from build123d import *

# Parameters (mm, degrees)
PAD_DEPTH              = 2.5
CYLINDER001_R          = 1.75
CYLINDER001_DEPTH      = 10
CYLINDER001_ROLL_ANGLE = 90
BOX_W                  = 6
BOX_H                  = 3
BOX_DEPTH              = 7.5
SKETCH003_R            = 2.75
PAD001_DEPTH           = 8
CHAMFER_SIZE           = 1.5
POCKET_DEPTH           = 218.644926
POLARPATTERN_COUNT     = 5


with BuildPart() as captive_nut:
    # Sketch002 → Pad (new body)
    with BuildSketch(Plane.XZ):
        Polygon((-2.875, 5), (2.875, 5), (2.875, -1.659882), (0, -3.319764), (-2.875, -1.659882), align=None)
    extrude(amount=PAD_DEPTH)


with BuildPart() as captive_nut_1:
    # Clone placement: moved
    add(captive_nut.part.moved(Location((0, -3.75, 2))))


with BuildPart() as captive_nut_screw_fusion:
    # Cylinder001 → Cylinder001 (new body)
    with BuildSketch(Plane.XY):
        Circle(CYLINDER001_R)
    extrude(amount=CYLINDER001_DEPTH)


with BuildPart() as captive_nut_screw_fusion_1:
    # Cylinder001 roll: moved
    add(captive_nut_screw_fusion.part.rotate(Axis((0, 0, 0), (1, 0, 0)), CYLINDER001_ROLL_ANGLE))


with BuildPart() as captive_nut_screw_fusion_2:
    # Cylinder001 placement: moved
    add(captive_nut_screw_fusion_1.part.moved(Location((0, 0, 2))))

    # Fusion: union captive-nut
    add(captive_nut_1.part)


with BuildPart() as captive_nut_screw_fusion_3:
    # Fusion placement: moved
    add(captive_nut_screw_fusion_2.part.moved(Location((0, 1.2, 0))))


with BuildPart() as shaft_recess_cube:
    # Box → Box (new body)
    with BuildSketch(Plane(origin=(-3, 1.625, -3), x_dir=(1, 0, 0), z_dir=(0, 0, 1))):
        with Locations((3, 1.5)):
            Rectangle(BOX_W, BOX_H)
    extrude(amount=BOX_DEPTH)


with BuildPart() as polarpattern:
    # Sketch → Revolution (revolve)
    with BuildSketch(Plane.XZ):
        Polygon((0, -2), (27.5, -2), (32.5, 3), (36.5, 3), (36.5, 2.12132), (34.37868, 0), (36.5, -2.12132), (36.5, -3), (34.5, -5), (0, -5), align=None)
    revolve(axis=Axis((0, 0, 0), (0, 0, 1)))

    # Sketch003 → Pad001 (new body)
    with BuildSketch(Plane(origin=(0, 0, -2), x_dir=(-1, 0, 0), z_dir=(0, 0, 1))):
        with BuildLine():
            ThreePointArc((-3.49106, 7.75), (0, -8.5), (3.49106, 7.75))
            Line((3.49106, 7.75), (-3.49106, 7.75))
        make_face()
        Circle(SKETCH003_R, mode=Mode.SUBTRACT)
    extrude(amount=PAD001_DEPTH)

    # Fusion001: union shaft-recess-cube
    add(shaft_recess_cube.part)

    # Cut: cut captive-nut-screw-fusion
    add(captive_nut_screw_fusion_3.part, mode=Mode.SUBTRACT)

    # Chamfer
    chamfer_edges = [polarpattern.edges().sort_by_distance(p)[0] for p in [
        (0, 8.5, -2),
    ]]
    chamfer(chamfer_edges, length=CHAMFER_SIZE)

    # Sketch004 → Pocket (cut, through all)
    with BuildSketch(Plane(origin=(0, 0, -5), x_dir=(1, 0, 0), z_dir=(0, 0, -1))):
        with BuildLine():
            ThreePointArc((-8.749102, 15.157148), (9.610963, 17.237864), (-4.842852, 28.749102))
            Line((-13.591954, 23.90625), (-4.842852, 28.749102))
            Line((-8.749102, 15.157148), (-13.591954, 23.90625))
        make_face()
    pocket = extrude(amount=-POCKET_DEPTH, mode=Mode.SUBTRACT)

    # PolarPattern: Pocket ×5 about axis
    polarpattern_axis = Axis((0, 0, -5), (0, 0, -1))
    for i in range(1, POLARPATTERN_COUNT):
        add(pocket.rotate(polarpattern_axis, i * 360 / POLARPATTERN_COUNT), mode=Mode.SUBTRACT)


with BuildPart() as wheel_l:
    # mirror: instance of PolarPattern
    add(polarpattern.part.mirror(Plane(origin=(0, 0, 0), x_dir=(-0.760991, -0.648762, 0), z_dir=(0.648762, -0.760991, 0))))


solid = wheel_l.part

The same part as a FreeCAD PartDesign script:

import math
import FreeCAD as App
import Part
import Sketcher
Q = App.Units.Quantity


def edges_at(feature, points):
    """Names of the edges that pass closest to the given points."""
    edges = feature.Shape.Edges
    near = lambda p: min(range(len(edges)), key=lambda i: edges[i].distToShape(Part.Vertex(*p))[0])
    return sorted({f"Edge{near(p) + 1}" for p in points})


def add_polygon(sketch, points):
    """Adds a closed chain of lines whose ends are joined by coincident constraints."""
    first, n = sketch.GeometryCount, len(points)
    for a, b in zip(points, points[1:] + points[:1]):
        sketch.addGeometry(Part.LineSegment(App.Vector(*a, 0), App.Vector(*b, 0)), False)
    for i in range(n):
        sketch.addConstraint(Sketcher.Constraint("Coincident", first + i, 2, first + (i + 1) % n, 1))

doc = App.newDocument("Part")
body = doc.addObject("PartDesign::Body", "Body")

sketch1 = doc.addObject("Sketcher::SketchObject", "Sketch")
body.addObject(sketch1)
sketch1.AttachmentSupport = (doc.XZ_Plane, [""])
sketch1.MapMode = "FlatFace"
add_polygon(sketch1, [(2.875, 5), (-2.875, 5), (-2.875, -1.659882), (0, -3.319764), (2.875, -1.659882)])
sketch1.addConstraint([
    Sketcher.Constraint("Horizontal", 0),
    Sketcher.Constraint("Vertical", 1),
    Sketcher.Constraint("Vertical", 4),
    Sketcher.Constraint("Symmetric", 1, 2, 3, 2, -2),
    Sketcher.Constraint("PointOnObject", 2, 2, -2),
    Sketcher.Constraint("Angle", 2, Q("-30 deg")),
    Sketcher.Constraint("DistanceY", -1, 1, 0, 2, 5.0),
    Sketcher.Constraint("DistanceX", 0, 2, 0, 1, 5.75),
    Sketcher.Constraint("DistanceY", 1, 2, 1, 1, 6.659882),
])
pad1 = doc.addObject("PartDesign::Pad", "Pad")
body.addObject(pad1)
pad1.Profile = sketch1
pad1.Length = 2.5
body2 = doc.addObject("PartDesign::Body", "Body001")
doc.recompute()

body.Placement = App.Placement(App.Vector(0, -3.75, 2), App.Rotation(App.Vector(0, 0, 1), 0))
boolean = doc.addObject("PartDesign::Boolean", "Boolean")
body2.addObject(boolean)
boolean.Type = "Fuse"
boolean.addObjects([body])
body3 = doc.addObject("PartDesign::Body", "Body002")

sketch2 = doc.addObject("Sketcher::SketchObject", "Sketch001")
body3.addObject(sketch2)
sketch2.AttachmentSupport = (doc.getObject("XY_Plane002"), [""])
sketch2.MapMode = "FlatFace"
sketch2.addGeometry(Part.Circle(App.Vector(0, 0, 0), App.Vector(0, 0, 1), 1.75), False)
sketch2.addConstraint([
    Sketcher.Constraint("Coincident", 0, 3, -1, 1),
    Sketcher.Constraint("Diameter", 0, 3.5),
])
pad2 = doc.addObject("PartDesign::Pad", "Pad001")
body3.addObject(pad2)
pad2.Profile = sketch2
pad2.Length = 10
body4 = doc.addObject("PartDesign::Body", "Body003")
doc.recompute()

body3.Placement = App.Placement(App.Vector(0, 0, 0), App.Rotation(App.Vector(1, 0, 0), 90))
boolean2 = doc.addObject("PartDesign::Boolean", "Boolean001")
body4.addObject(boolean2)
boolean2.Type = "Fuse"
boolean2.addObjects([body3])
body5 = doc.addObject("PartDesign::Body", "Body004")
doc.recompute()

body4.Placement = App.Placement(App.Vector(0, 0, 2), App.Rotation(App.Vector(0, 0, 1), 0))
boolean3 = doc.addObject("PartDesign::Boolean", "Boolean002")
body5.addObject(boolean3)
boolean3.Type = "Fuse"
boolean3.addObjects([body4])
doc.recompute()

boolean4 = doc.addObject("PartDesign::Boolean", "Boolean003")
body5.addObject(boolean4)
boolean4.Type = "Fuse"
boolean4.addObjects([body2])
body6 = doc.addObject("PartDesign::Body", "Body005")
doc.recompute()

body5.Placement = App.Placement(App.Vector(0, 1.2, 0), App.Rotation(App.Vector(0, 0, 1), 0))
boolean5 = doc.addObject("PartDesign::Boolean", "Boolean004")
body6.addObject(boolean5)
boolean5.Type = "Fuse"
boolean5.addObjects([body5])
body7 = doc.addObject("PartDesign::Body", "Body006")

sketch3 = doc.addObject("Sketcher::SketchObject", "Sketch002")
body7.addObject(sketch3)
sketch3.AttachmentSupport = (doc.getObject("XY_Plane006"), [""])
sketch3.MapMode = "FlatFace"
sketch3.AttachmentOffset = App.Placement(App.Vector(0, 0, -3), App.Rotation())
add_polygon(sketch3, [(-3, 4.625), (-3, 1.625), (3, 1.625), (3, 4.625)])
sketch3.addConstraint([
    Sketcher.Constraint("Vertical", 0),
    Sketcher.Constraint("Horizontal", 1),
    Sketcher.Constraint("Vertical", 2),
    Sketcher.Constraint("Horizontal", 3),
    Sketcher.Constraint("DistanceX", 1, 1, 1, 2, 6.0),
    Sketcher.Constraint("DistanceY", 0, 2, 0, 1, 3.0),
    Sketcher.Constraint("DistanceX", 0, 2, -1, 1, 3.0),
    Sketcher.Constraint("DistanceY", -1, 1, 0, 2, 1.625),
])
pad3 = doc.addObject("PartDesign::Pad", "Pad002")
body7.addObject(pad3)
pad3.Profile = sketch3
pad3.Length = 7.5
body8 = doc.addObject("PartDesign::Body", "Body007")

sketch4 = doc.addObject("Sketcher::SketchObject", "Sketch003")
body8.addObject(sketch4)
sketch4.AttachmentSupport = (doc.getObject("XZ_Plane007"), [""])
sketch4.MapMode = "FlatFace"
add_polygon(sketch4, [(27.5, -2), (0, -2), (0, -5), (34.5, -5), (36.5, -3), (36.5, -2.12132), (34.37868, 0), (36.5, 2.12132), (36.5, 3), (32.5, 3)])
sketch4.addConstraint([
    Sketcher.Constraint("Horizontal", 0),
    Sketcher.Constraint("Vertical", 1),
    Sketcher.Constraint("Horizontal", 2),
    Sketcher.Constraint("Vertical", 4),
    Sketcher.Constraint("Vertical", 7),
    Sketcher.Constraint("Horizontal", 8),
    Sketcher.Constraint("Symmetric", 4, 2, 6, 2, -1),
    Sketcher.Constraint("PointOnObject", 0, 2, -2),
    Sketcher.Constraint("PointOnObject", 5, 2, -1),
    Sketcher.Constraint("Perpendicular", 3, 5),
    Sketcher.Constraint("Perpendicular", 5, 6),
    Sketcher.Constraint("Parallel", 6, 9),
    Sketcher.Constraint("Equal", 4, 7),
    Sketcher.Constraint("DistanceX", 8, 2, 8, 1, 4.0),
    Sketcher.Constraint("DistanceY", 1, 2, 1, 1, 3.0),
    Sketcher.Constraint("Distance", 5, 3.0),
    Sketcher.Constraint("DistanceX", 0, 2, 0, 1, 27.5),
    Sketcher.Constraint("DistanceX", 2, 1, 2, 2, 34.5),
    Sketcher.Constraint("DistanceY", 0, 2, -1, 1, 2.0),
])
revolution = doc.addObject("PartDesign::Revolution", "Revolution")
body8.addObject(revolution)
revolution.Profile = sketch4
revolution.ReferenceAxis = (sketch4, ["V_Axis"])
revolution.Angle = 360

sketch5 = doc.addObject("Sketcher::SketchObject", "Sketch004")
body8.addObject(sketch5)
sketch5.AttachmentSupport = (doc.getObject("XY_Plane007"), [""])
sketch5.MapMode = "FlatFace"
sketch5.AttachmentOffset = App.Placement(App.Vector(0, 0, -2), App.Rotation())
sketch5.addGeometry([
    Part.ArcOfCircle(Part.Circle(App.Vector(0, 0, 0), App.Vector(0, 0, 1), 8.5), math.radians(-65.750371), math.radians(245.750371)),
    Part.LineSegment(App.Vector(-3.49106, -7.75, 0), App.Vector(3.49106, -7.75, 0)),
    Part.Circle(App.Vector(0, 0, 0), App.Vector(0, 0, 1), 2.75),
], False)
sketch5.addConstraint([
    Sketcher.Constraint("Coincident", 0, 1, 1, 2),
    Sketcher.Constraint("Coincident", 1, 1, 0, 2),
    Sketcher.Constraint("Horizontal", 1),
    Sketcher.Constraint("Coincident", 0, 3, -1, 1),
    Sketcher.Constraint("Coincident", 2, 3, -1, 1),
    Sketcher.Constraint("Diameter", 2, 5.5),
    Sketcher.Constraint("Radius", 0, 8.5),
    Sketcher.Constraint("DistanceY", 0, 1, -1, 1, 7.75),
])
pad4 = doc.addObject("PartDesign::Pad", "Pad003")
body8.addObject(pad4)
pad4.Profile = sketch5
pad4.Length = 8
doc.recompute()

boolean6 = doc.addObject("PartDesign::Boolean", "Boolean005")
body8.addObject(boolean6)
boolean6.Type = "Fuse"
boolean6.addObjects([body7])
doc.recompute()

boolean7 = doc.addObject("PartDesign::Boolean", "Boolean006")
body8.addObject(boolean7)
boolean7.Type = "Cut"
boolean7.addObjects([body6])
doc.recompute()

chamfer = doc.addObject("PartDesign::Chamfer", "Chamfer")
body8.addObject(chamfer)
chamfer.Base = (boolean7, edges_at(boolean7, [(0, 8.5, -2)]))
chamfer.Size = 1.5

sketch6 = doc.addObject("Sketcher::SketchObject", "Sketch005")
body8.addObject(sketch6)
sketch6.AttachmentSupport = (doc.getObject("XY_Plane007"), [""])
sketch6.MapMode = "FlatFace"
sketch6.AttachmentOffset = App.Placement(App.Vector(0, 0, -5), App.Rotation())
sketch6.addGeometry([
    Part.ArcOfCircle(Part.Circle(App.Vector(0, -20, 0), App.Vector(0, 0, 1), 10), math.radians(-118.965652), math.radians(151.034349)),
    Part.LineSegment(App.Vector(-4.842852, -28.749102, 0), App.Vector(-13.591954, -23.90625, 0)),
    Part.LineSegment(App.Vector(-13.591954, -23.90625, 0), App.Vector(-8.749102, -15.157148, 0)),
], False)
sketch6.addConstraint([
    Sketcher.Constraint("Tangent", 0, 1, 1, 1),
    Sketcher.Constraint("Coincident", 1, 2, 2, 1),
    Sketcher.Constraint("Tangent", 2, 2, 0, 2),
    Sketcher.Constraint("PointOnObject", 0, 3, -2),
    Sketcher.Constraint("Perpendicular", 1, 2),
    Sketcher.Constraint("Radius", 0, 10.0),
    Sketcher.Constraint("DistanceY", 0, 3, -1, 1, 20.0),
    Sketcher.Constraint("DistanceX", 1, 2, 0, 1, 8.749102),
])
pocket1 = doc.addObject("PartDesign::Pocket", "Pocket")
body8.addObject(pocket1)
pocket1.Profile = sketch6
pocket1.Type = "ThroughAll"
pocket1.Reversed = True
doc.recompute()

polarpattern = doc.addObject("PartDesign::PolarPattern", "PolarPattern")
body8.addObject(polarpattern)
polarpattern.Originals = [pocket1]
polarpattern.Axis = (doc.getObject("Z_Axis007"), [""])
polarpattern.Angle = 360
polarpattern.Occurrences = 5
body8.Tip = polarpattern
body9 = doc.addObject("PartDesign::Body", "Body008")
doc.recompute()

mirroring = doc.addObject("Part::Mirroring", "Mirroring")
mirroring.Source = body8
mirroring.Base = App.Vector(0, 0, 0)
mirroring.Normal = App.Vector(0.648762183, -0.760991215, 0)
body9.BaseFeature = mirroring
doc.recompute()
body8.Visibility = False
mirroring.Visibility = False

doc.recompute()
